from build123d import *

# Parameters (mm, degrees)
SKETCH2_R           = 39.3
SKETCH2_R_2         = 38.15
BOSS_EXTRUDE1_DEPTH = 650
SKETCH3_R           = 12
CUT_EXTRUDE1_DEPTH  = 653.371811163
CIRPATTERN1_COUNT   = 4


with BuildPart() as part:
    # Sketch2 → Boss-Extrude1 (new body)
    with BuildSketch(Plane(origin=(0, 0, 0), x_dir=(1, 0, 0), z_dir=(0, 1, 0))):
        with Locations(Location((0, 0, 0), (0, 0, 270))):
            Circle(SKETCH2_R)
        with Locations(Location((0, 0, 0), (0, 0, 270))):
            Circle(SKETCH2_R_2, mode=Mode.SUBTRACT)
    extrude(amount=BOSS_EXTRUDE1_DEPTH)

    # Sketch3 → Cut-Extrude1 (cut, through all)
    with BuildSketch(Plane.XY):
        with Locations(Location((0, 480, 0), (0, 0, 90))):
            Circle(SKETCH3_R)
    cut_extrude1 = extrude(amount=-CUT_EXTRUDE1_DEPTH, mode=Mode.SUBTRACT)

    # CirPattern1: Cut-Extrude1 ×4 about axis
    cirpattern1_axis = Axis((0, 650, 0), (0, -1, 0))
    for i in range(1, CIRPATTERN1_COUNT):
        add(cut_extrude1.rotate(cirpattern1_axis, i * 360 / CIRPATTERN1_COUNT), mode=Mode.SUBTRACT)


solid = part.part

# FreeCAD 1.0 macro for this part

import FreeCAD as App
import Part
import Sketcher
Q = App.Units.Quantity

doc = App.newDocument("Part")
body = doc.addObject("PartDesign::Body", "Body")

sketch1 = body.newObject("Sketcher::SketchObject", "Sketch")
sketch1.AttachmentSupport = (doc.getObject("XZ_Plane"), [""])
sketch1.MapMode = "FlatFace"
sketch1.addGeometry(Part.Circle(App.Vector(0, 0, 0), App.Vector(0, 0, 1), 39.3), False)
sketch1.addGeometry(Part.Circle(App.Vector(0, 0, 0), App.Vector(0, 0, 1), 38.15), False)
sketch1.addConstraint(Sketcher.Constraint("Coincident", 0, 3, -1, 1))
sketch1.addConstraint(Sketcher.Constraint("Coincident", 1, 3, -1, 1))
sketch1.addConstraint(Sketcher.Constraint("Diameter", 0, Q("78.6 mm")))
sketch1.addConstraint(Sketcher.Constraint("Diameter", 1, Q("76.3 mm")))
pad1 = body.newObject("PartDesign::Pad", "Pad")
pad1.Profile = sketch1
pad1.Length = 650
pad1.Reversed = True

sketch2 = body.newObject("Sketcher::SketchObject", "Sketch001")
sketch2.AttachmentSupport = (doc.getObject("XY_Plane"), [""])
sketch2.MapMode = "FlatFace"
sketch2.addGeometry(Part.Circle(App.Vector(0, 480, 0), App.Vector(0, 0, 1), 12), False)
sketch2.addConstraint(Sketcher.Constraint("PointOnObject", 0, 3, -2))
sketch2.addConstraint(Sketcher.Constraint("Diameter", 0, Q("24 mm")))
sketch2.addConstraint(Sketcher.Constraint("DistanceY", -1, 1, 0, 3, Q("480 mm")))
pocket1 = body.newObject("PartDesign::Pocket", "Pocket")
pocket1.Profile = sketch2
pocket1.Type = "ThroughAll"
doc.recompute()

polarpattern = body.newObject("PartDesign::PolarPattern", "PolarPattern")
polarpattern.Originals = [pocket1]
polarpattern.Axis = (doc.getObject("Y_Axis"), [""])
polarpattern.Angle = 360
polarpattern.Occurrences = 4
body.Tip = polarpattern

doc.recompute()
